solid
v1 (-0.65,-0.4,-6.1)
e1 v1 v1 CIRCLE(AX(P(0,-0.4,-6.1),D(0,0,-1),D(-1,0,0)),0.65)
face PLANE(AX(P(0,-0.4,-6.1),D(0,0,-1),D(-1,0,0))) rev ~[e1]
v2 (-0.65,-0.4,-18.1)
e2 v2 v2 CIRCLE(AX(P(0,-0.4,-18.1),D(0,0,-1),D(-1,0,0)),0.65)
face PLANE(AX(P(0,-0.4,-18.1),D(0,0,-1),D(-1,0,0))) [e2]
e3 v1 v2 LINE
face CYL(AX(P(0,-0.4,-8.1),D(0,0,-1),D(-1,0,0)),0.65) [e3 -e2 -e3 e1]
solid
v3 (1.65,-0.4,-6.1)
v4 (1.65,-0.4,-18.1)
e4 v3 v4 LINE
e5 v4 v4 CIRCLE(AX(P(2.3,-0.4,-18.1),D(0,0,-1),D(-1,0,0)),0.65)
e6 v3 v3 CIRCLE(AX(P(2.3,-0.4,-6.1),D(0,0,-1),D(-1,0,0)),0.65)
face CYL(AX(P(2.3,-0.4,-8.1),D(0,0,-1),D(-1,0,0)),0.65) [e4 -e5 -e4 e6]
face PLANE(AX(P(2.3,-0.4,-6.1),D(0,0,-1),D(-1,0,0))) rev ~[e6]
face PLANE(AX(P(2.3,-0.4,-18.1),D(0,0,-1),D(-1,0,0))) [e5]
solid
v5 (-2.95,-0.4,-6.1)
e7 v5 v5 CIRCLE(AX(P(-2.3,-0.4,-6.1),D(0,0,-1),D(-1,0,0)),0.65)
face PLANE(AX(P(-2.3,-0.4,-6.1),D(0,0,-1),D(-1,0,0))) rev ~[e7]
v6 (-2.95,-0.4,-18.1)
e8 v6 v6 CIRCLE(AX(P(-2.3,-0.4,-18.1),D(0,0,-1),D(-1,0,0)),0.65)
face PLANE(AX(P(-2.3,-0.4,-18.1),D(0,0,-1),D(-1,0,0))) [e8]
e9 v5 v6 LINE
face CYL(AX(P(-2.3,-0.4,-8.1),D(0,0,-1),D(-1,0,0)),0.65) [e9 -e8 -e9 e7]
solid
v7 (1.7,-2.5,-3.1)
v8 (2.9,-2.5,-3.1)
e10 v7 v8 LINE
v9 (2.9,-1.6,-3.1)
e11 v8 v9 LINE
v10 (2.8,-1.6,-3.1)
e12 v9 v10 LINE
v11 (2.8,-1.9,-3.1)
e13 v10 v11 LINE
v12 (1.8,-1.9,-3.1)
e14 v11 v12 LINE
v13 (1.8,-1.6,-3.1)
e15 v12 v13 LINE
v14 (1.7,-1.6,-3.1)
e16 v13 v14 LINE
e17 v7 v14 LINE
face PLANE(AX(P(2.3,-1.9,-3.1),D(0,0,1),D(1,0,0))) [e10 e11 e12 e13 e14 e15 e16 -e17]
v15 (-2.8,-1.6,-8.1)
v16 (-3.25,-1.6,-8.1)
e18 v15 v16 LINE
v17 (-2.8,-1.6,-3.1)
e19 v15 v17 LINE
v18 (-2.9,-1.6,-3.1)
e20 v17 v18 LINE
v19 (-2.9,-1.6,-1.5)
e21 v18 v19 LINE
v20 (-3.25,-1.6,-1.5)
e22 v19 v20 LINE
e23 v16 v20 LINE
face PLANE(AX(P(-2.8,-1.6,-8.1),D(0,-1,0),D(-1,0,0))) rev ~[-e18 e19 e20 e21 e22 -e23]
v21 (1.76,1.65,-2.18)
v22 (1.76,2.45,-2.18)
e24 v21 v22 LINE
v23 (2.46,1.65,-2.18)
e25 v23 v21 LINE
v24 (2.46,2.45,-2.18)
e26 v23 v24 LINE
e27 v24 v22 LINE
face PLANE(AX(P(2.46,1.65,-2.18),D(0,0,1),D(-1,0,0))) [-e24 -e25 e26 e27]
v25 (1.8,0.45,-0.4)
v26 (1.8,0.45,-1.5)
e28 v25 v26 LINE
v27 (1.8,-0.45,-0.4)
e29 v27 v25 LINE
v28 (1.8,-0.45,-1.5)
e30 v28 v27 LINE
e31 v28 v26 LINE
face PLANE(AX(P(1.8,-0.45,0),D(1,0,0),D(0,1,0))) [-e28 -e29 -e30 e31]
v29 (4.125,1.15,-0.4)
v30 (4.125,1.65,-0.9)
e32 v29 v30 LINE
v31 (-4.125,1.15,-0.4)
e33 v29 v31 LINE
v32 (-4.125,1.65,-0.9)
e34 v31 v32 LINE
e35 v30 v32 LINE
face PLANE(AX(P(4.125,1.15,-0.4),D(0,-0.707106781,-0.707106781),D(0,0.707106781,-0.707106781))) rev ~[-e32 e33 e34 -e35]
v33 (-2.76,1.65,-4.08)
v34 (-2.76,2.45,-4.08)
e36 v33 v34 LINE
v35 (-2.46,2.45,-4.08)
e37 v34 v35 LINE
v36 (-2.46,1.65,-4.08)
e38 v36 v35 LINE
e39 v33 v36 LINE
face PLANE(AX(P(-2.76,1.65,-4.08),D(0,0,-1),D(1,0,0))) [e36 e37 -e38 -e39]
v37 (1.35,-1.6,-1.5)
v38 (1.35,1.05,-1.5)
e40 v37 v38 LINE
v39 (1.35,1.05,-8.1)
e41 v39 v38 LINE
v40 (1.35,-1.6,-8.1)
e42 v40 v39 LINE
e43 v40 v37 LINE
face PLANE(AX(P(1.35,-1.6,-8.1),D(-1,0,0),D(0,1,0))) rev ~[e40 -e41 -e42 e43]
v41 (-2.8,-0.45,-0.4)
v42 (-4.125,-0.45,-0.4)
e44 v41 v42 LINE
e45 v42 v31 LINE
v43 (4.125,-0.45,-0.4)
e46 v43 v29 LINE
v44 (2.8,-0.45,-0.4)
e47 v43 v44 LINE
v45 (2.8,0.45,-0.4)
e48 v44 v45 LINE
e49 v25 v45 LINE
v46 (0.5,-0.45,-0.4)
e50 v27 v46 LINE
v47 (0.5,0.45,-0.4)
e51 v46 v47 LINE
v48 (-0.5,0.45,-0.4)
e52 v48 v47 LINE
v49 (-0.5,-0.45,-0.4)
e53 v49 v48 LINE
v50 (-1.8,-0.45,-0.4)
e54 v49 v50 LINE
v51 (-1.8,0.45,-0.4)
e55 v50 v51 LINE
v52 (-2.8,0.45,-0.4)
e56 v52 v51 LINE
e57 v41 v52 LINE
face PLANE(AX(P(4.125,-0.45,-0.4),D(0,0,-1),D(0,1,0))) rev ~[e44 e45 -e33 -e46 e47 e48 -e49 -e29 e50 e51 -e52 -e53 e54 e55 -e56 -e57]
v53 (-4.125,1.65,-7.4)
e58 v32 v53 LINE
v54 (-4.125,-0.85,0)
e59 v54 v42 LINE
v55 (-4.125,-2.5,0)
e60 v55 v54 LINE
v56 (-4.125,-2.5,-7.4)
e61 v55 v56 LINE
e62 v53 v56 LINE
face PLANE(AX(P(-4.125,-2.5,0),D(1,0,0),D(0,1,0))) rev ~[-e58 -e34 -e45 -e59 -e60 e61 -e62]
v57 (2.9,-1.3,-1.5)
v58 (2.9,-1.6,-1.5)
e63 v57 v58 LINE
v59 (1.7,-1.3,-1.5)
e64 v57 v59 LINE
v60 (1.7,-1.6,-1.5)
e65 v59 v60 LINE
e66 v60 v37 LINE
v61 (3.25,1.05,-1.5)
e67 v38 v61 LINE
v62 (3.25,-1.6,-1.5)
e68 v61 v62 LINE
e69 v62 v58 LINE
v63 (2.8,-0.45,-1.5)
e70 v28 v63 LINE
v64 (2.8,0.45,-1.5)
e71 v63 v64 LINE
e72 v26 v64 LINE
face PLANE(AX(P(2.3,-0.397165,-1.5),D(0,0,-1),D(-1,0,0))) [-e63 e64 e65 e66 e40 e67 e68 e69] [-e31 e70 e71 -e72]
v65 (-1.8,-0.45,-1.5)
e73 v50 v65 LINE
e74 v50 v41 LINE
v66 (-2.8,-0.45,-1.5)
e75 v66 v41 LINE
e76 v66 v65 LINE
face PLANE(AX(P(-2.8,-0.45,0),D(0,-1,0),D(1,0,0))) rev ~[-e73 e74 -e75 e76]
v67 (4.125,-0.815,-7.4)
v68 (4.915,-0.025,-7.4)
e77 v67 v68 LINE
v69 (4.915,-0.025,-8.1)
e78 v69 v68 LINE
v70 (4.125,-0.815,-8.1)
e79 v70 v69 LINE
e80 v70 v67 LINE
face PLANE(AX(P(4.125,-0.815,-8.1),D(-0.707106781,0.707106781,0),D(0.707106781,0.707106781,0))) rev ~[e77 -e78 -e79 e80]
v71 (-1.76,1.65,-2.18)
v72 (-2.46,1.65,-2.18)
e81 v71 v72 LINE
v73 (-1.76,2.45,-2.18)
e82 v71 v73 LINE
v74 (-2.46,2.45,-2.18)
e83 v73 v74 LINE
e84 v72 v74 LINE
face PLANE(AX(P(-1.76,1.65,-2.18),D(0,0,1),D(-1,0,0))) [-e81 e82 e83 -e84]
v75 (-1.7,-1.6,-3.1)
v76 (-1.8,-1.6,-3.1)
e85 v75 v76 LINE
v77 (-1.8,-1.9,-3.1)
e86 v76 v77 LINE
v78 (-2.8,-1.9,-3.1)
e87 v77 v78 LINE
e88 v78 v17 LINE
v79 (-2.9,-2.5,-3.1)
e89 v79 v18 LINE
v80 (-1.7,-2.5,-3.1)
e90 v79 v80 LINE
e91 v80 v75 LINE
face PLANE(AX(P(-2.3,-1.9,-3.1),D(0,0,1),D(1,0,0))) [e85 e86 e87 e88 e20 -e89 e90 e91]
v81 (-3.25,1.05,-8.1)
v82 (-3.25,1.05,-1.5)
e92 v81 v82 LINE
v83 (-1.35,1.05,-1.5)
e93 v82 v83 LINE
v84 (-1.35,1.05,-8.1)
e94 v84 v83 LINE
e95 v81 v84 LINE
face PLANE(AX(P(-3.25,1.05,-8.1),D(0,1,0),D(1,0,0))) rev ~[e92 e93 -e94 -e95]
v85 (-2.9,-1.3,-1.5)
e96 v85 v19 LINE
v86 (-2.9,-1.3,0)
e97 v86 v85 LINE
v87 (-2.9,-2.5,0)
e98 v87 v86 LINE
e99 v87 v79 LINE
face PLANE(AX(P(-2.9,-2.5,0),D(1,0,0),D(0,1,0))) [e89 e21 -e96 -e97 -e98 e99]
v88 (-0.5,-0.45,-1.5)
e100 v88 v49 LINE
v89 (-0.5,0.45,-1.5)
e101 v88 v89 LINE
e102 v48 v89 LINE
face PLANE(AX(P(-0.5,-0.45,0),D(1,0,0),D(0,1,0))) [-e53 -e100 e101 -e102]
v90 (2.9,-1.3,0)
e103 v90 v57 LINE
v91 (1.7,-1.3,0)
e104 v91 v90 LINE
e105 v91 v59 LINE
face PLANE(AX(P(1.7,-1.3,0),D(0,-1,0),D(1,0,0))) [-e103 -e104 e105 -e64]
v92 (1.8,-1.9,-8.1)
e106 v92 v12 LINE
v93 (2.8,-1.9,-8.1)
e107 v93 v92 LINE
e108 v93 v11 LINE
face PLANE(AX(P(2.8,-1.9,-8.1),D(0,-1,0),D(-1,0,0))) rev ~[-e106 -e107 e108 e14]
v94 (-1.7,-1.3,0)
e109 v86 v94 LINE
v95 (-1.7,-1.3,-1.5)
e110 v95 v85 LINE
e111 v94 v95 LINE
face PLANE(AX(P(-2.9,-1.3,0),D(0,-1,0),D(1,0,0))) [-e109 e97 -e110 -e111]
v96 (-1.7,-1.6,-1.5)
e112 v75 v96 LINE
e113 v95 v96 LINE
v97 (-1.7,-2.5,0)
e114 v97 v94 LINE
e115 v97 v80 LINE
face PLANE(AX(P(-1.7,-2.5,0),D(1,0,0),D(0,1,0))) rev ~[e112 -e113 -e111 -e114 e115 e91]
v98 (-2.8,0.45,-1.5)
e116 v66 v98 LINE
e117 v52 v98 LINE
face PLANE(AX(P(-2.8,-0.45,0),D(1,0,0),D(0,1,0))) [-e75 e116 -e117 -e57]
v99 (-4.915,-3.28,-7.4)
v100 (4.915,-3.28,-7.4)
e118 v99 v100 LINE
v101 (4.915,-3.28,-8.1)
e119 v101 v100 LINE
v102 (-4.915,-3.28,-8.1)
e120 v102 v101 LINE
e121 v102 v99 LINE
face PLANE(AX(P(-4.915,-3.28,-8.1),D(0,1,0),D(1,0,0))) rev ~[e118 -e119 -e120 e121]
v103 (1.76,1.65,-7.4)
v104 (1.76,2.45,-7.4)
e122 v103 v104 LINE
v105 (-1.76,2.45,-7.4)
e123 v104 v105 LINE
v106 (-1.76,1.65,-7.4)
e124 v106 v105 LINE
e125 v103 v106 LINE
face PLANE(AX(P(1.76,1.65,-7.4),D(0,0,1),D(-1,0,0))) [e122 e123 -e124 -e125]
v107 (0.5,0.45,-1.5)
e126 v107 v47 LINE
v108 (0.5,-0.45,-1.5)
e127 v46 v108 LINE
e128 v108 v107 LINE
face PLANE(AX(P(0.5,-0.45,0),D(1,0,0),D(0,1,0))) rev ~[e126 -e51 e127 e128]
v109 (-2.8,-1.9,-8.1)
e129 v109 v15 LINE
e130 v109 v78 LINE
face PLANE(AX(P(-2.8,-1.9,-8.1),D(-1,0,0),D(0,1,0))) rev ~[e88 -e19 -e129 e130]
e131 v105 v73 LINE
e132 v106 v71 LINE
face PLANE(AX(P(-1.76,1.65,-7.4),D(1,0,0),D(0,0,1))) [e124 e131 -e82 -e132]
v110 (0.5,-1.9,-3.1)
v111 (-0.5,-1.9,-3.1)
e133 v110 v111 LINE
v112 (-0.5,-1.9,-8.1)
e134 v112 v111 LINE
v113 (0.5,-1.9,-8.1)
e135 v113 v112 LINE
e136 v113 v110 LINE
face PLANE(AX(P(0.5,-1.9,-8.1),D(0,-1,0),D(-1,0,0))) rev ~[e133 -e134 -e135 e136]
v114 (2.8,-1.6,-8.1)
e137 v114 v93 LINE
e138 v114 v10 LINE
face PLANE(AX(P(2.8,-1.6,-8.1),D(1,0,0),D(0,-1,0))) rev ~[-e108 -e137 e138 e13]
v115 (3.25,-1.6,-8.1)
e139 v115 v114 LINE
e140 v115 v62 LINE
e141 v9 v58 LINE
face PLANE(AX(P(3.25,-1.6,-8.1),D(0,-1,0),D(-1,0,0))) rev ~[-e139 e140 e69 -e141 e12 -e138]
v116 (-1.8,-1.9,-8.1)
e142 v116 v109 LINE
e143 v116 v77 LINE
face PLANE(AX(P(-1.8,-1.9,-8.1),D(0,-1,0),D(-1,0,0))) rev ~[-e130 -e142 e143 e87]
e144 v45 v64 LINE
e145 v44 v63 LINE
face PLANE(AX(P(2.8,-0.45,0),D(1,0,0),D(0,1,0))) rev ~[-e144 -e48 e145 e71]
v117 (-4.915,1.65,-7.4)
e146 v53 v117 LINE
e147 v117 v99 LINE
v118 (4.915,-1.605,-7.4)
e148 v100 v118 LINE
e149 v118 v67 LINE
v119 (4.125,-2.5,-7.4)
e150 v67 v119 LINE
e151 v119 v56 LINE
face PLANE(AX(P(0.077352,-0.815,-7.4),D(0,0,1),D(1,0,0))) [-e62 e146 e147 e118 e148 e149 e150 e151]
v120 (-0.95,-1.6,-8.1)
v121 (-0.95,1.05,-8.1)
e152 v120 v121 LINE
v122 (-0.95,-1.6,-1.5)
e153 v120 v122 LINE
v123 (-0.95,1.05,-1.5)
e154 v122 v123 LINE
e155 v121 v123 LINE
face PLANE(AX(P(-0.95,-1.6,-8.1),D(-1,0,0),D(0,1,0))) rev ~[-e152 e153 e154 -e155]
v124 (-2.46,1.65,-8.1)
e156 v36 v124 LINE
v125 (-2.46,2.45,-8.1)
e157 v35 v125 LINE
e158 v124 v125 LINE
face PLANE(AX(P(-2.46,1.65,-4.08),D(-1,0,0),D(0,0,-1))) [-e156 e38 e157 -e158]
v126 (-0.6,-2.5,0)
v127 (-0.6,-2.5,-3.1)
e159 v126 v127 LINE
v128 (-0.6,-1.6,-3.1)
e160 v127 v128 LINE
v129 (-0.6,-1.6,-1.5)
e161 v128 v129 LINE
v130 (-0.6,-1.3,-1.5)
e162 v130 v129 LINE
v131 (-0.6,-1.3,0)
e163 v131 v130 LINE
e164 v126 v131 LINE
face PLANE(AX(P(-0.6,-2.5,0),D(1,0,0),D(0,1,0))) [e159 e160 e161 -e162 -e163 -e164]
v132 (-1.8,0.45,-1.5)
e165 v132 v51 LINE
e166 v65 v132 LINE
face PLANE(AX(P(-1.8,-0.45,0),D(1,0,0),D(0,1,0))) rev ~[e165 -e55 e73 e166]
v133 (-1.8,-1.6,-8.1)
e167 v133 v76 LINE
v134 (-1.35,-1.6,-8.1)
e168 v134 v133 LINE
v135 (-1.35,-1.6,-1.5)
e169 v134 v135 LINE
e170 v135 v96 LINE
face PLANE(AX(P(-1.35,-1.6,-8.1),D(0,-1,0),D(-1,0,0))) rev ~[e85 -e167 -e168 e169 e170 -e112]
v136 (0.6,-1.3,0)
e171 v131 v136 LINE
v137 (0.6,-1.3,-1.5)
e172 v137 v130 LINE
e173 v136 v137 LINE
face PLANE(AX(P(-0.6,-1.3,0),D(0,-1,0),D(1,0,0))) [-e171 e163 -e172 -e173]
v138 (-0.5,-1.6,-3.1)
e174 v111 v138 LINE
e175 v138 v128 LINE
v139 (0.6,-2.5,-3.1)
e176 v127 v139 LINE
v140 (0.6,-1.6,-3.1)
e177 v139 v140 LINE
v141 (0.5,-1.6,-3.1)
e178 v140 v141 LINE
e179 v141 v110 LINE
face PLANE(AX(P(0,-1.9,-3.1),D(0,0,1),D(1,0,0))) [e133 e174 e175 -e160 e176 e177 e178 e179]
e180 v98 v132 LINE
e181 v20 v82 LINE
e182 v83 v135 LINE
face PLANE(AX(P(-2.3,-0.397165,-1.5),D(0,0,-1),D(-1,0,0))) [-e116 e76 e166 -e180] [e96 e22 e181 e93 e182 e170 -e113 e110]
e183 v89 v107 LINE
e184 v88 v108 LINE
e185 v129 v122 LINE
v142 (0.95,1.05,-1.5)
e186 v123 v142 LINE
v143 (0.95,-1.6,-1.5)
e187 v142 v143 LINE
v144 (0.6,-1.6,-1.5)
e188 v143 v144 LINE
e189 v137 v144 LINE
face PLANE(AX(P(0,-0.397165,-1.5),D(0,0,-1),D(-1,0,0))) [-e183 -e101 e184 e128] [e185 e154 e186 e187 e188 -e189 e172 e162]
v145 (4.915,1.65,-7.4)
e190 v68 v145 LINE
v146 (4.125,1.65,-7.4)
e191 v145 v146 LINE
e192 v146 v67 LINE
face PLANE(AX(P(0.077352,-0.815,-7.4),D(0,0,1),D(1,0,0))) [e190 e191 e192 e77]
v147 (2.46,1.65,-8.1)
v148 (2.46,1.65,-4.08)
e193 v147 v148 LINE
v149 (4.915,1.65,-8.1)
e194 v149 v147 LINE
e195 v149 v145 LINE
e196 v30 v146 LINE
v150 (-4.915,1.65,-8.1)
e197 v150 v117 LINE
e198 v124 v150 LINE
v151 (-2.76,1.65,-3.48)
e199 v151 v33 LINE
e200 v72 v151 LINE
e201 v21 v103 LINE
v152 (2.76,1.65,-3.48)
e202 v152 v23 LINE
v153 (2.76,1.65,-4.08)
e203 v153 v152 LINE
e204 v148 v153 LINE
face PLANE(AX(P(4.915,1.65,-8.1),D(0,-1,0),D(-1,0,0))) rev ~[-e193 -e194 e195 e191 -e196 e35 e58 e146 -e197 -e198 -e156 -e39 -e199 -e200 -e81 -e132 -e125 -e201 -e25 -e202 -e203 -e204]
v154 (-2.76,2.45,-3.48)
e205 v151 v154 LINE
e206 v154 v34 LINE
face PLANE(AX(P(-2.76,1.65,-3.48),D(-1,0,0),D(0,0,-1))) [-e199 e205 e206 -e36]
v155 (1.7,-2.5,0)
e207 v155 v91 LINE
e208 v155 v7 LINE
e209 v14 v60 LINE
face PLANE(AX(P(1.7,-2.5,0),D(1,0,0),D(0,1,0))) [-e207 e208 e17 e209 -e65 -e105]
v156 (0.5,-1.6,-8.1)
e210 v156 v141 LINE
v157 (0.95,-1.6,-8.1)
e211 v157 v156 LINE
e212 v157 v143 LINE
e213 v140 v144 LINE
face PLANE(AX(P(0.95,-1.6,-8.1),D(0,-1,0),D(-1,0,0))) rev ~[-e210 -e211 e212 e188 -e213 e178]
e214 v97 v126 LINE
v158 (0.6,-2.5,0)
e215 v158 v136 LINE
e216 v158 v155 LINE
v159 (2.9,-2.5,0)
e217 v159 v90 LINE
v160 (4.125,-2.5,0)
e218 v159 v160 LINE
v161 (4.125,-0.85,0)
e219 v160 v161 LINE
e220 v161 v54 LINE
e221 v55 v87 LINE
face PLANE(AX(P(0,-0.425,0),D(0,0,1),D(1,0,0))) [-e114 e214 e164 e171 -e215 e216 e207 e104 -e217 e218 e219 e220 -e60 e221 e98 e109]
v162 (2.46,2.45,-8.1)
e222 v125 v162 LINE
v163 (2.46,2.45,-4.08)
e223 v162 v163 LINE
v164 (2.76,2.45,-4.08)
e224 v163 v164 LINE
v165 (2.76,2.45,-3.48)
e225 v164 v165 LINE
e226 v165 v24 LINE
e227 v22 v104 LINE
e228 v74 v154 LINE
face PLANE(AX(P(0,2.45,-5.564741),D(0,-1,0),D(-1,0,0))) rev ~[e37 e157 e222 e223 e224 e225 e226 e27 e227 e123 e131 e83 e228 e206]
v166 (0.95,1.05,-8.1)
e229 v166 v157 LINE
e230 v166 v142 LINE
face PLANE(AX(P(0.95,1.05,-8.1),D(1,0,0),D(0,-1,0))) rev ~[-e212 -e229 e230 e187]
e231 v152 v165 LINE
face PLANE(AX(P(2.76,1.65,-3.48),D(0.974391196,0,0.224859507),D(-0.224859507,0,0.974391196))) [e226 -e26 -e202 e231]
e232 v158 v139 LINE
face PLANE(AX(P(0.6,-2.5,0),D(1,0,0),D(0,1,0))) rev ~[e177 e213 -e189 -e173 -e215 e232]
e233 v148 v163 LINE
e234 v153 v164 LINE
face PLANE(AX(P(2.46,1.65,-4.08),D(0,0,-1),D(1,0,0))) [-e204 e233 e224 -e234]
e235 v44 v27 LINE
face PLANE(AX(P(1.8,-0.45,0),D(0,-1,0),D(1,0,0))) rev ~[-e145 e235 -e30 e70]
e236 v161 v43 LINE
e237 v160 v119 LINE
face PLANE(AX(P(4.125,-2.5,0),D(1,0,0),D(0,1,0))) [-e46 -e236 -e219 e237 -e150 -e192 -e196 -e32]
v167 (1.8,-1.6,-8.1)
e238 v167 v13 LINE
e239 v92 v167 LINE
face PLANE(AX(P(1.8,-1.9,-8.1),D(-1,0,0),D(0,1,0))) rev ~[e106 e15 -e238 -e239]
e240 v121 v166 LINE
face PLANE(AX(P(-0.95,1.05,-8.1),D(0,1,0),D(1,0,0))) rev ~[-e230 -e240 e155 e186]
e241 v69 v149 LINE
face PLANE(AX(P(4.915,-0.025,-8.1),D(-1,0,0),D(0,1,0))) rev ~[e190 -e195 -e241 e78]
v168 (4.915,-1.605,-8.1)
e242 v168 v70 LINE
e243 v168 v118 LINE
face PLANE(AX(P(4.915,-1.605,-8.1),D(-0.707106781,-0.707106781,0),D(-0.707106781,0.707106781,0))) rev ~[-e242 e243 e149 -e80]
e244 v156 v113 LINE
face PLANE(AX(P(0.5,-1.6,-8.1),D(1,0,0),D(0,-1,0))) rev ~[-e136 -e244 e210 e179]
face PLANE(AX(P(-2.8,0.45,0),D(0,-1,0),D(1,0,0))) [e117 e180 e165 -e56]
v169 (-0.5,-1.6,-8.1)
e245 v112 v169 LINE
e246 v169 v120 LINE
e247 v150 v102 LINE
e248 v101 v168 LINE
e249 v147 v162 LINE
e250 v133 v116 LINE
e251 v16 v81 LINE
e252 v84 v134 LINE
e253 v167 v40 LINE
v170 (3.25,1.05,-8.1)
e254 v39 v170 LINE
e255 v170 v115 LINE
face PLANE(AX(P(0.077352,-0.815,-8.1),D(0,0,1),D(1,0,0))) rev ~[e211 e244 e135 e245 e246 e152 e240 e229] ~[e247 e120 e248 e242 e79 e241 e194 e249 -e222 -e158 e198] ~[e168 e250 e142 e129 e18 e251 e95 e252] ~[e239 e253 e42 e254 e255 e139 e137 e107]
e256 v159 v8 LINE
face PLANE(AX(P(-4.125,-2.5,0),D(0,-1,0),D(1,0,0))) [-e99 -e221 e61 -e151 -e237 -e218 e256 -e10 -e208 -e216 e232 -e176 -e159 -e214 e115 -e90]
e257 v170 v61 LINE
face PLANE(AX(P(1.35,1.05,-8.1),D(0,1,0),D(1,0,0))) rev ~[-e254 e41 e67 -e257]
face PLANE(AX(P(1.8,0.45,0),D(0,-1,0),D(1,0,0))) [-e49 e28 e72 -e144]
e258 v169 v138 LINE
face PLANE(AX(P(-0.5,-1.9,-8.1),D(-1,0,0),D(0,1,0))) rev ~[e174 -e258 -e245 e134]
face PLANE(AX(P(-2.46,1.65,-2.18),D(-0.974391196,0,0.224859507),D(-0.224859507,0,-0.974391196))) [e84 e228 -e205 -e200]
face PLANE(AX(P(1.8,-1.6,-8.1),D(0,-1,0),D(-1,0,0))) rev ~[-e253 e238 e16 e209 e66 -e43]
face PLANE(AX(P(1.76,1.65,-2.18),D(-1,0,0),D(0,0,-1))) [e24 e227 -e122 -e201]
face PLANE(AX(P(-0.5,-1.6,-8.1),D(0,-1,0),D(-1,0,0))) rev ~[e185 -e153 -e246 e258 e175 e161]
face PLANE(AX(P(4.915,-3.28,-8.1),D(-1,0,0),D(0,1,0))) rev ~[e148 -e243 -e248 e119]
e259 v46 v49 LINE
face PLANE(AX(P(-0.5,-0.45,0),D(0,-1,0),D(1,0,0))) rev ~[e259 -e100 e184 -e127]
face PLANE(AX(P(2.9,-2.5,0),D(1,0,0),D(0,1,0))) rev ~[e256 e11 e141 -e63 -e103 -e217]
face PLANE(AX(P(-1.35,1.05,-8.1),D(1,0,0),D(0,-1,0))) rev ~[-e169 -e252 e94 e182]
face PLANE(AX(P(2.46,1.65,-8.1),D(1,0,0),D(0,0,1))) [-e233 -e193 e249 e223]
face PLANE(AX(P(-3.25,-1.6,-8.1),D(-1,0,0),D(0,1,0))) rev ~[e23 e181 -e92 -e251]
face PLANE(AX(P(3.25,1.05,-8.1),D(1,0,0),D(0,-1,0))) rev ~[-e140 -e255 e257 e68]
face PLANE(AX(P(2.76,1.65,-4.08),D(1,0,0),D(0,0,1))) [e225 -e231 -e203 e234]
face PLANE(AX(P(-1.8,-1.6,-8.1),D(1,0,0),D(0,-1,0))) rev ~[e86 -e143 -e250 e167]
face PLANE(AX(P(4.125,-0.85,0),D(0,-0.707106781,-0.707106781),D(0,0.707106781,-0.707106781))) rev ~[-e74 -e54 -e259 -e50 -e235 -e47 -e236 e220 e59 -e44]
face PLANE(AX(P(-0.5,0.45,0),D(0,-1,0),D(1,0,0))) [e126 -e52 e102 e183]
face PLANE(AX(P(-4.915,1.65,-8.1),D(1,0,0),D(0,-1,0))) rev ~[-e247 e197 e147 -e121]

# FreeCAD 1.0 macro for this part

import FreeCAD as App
import Part
import Sketcher
from FreeCAD import Vector
Q = App.Units.Quantity

doc = App.newDocument("Part")
params = doc.addObject("Spreadsheet::Sheet", "Params")
for row, (alias, value) in enumerate([
    ("sketch1_width", "1 mm"),
    ("sketch1_height", "0.9 mm"),
    ("sketch1_width2", "8.25 mm"),
    ("sketch1_height2", "4.15 mm"),
    ("pad1_length", "8.1 mm"),
    ("sketch2_width", "5.6 mm"),
    ("sketch2_height", "0.9 mm"),
    ("sketch2_width2", "9.83 mm"),
    ("sketch2_height2", "4.93 mm"),
    ("pad2_length", "0.7 mm"),
    ("sketch3_width", "1 mm"),
    ("sketch3_width2", "1.9 mm"),
    ("sketch3_height", "0.3 mm"),
    ("sketch3_height2", "2.65 mm"),
    ("pocket1_length", "6.6 mm"),
    ("sketch4_width", "1.6 mm"),
    ("sketch4_width2", "2.5 mm"),
    ("sketch5_width", "1.2 mm"),
    ("pocket3_length", "3.1 mm"),
    ("sketch6_width", "0.3 mm"),
    ("sketch6_width2", "0.7 mm"),
    ("sketch6_height", "0.6 mm"),
    ("sketch6_width3", "4.92 mm"),
    ("sketch6_height2", "4.02 mm"),
    ("pad3_length", "0.8 mm"),
    ("sketch7_diameter", "1.3 mm"),
    ("pad4_length", "10 mm"),
    ("pad4_length2", "2 mm"),
    ("sketch8_diameter", "1.3 mm"),
    ("pad5_length", "10 mm"),
    ("pad5_length2", "2 mm"),
    ("sketch9_diameter", "1.3 mm"),
    ("pad6_length", "10 mm"),
    ("pad6_length2", "2 mm"),
], start=1):
    params.set(f"A{row}", alias)
    params.set(f"B{row}", "=" + value)
    params.setAlias(f"B{row}", alias)

body = doc.addObject("PartDesign::Body", "Body")

# Sketch on XY plane
sketch1 = body.newObject("Sketcher::SketchObject", "Sketch")
sketch1.AttachmentSupport = (doc.getObject("XY_Plane"), [""])
sketch1.MapMode = "FlatFace"
sketch1.addGeometry([
    Part.LineSegment(Vector(-4.125, 1.65, 0), Vector(-4.125, -2.5, 0)),  # 0
    Part.LineSegment(Vector(-4.125, -2.5, 0), Vector(4.125, -2.5, 0)),  # 1
    Part.LineSegment(Vector(4.125, -2.5, 0), Vector(4.125, 1.65, 0)),  # 2
    Part.LineSegment(Vector(4.125, 1.65, 0), Vector(-4.125, 1.65, 0)),  # 3
    Part.LineSegment(Vector(-1.8, -0.45, 0), Vector(-2.8, -0.45, 0)),  # 4
    Part.LineSegment(Vector(-2.8, -0.45, 0), Vector(-2.8, 0.45, 0)),  # 5
    Part.LineSegment(Vector(-2.8, 0.45, 0), Vector(-1.8, 0.45, 0)),  # 6
    Part.LineSegment(Vector(-1.8, 0.45, 0), Vector(-1.8, -0.45, 0)),  # 7
    Part.LineSegment(Vector(0.5, -0.45, 0), Vector(-0.5, -0.45, 0)),  # 8
    Part.LineSegment(Vector(-0.5, -0.45, 0), Vector(-0.5, 0.45, 0)),  # 9
    Part.LineSegment(Vector(-0.5, 0.45, 0), Vector(0.5, 0.45, 0)),  # 10
    Part.LineSegment(Vector(0.5, 0.45, 0), Vector(0.5, -0.45, 0)),  # 11
    Part.LineSegment(Vector(2.8, -0.45, 0), Vector(1.8, -0.45, 0)),  # 12
    Part.LineSegment(Vector(1.8, -0.45, 0), Vector(1.8, 0.45, 0)),  # 13
    Part.LineSegment(Vector(1.8, 0.45, 0), Vector(2.8, 0.45, 0)),  # 14
    Part.LineSegment(Vector(2.8, 0.45, 0), Vector(2.8, -0.45, 0)),  # 15
], False)
sketch1.addConstraint([
    Sketcher.Constraint("Coincident", 0, 2, 1, 1),
    Sketcher.Constraint("Coincident", 1, 2, 2, 1),
    Sketcher.Constraint("Coincident", 2, 2, 3, 1),
    Sketcher.Constraint("Coincident", 3, 2, 0, 1),
    Sketcher.Constraint("Coincident", 4, 2, 5, 1),
    Sketcher.Constraint("Coincident", 5, 2, 6, 1),
    Sketcher.Constraint("Coincident", 6, 2, 7, 1),
    Sketcher.Constraint("Coincident", 7, 2, 4, 1),
    Sketcher.Constraint("Coincident", 8, 2, 9, 1),
    Sketcher.Constraint("Coincident", 9, 2, 10, 1),
    Sketcher.Constraint("Coincident", 10, 2, 11, 1),
    Sketcher.Constraint("Coincident", 11, 2, 8, 1),
    Sketcher.Constraint("Coincident", 12, 2, 13, 1),
    Sketcher.Constraint("Coincident", 13, 2, 14, 1),
    Sketcher.Constraint("Coincident", 14, 2, 15, 1),
    Sketcher.Constraint("Coincident", 15, 2, 12, 1),
    Sketcher.Constraint("Vertical", 0),
    Sketcher.Constraint("Horizontal", 1),
    Sketcher.Constraint("Vertical", 2),
    Sketcher.Constraint("Horizontal", 3),
    Sketcher.Constraint("Horizontal", 4),
    Sketcher.Constraint("Vertical", 5),
    Sketcher.Constraint("Horizontal", 6),
    Sketcher.Constraint("Vertical", 7),
    Sketcher.Constraint("Horizontal", 8),
    Sketcher.Constraint("Vertical", 9),
    Sketcher.Constraint("Horizontal", 10),
    Sketcher.Constraint("Vertical", 11),
    Sketcher.Constraint("Horizontal", 12),
    Sketcher.Constraint("Vertical", 13),
    Sketcher.Constraint("Horizontal", 14),
    Sketcher.Constraint("Vertical", 15),
    Sketcher.Constraint("Symmetric", 8, 2, 10, 2, -1, 1),
    Sketcher.Constraint("Symmetric", 6, 2, 12, 2, -1, 1),
    Sketcher.Constraint("Symmetric", 4, 2, 14, 2, -1, 1),
    Sketcher.Constraint("Horizontal", 7, 2, 8, 2),
    Sketcher.Constraint("Horizontal", 6, 2, 9, 2),
    Sketcher.Constraint("Equal", 6, 8),
    Sketcher.Constraint("DistanceX", 4, 2, 4, 1, Q("1 mm")),
    Sketcher.Constraint("DistanceY", 5, 1, 5, 2, Q("0.9 mm")),
    Sketcher.Constraint("DistanceX", 1, 1, 1, 2, Q("8.25 mm")),
    Sketcher.Constraint("DistanceY", 0, 2, 0, 1, Q("4.15 mm")),
    Sketcher.Constraint("DistanceY", 0, 2, -1, 1, Q("2.5 mm")),
    Sketcher.Constraint("DistanceX", 4, 2, -1, 1, Q("2.8 mm")),
    Sketcher.Constraint("DistanceX", 0, 2, -1, 1, Q("4.125 mm")),
])
sketch1.setExpression("Constraints[38]", "Params.sketch1_width")
sketch1.setExpression("Constraints[39]", "Params.sketch1_height")
sketch1.setExpression("Constraints[40]", "Params.sketch1_width2")
sketch1.setExpression("Constraints[41]", "Params.sketch1_height2")
pad1 = body.newObject("PartDesign::Pad", "Pad")
pad1.Profile = sketch1
pad1.setExpression("Length", "Params.pad1_length")
pad1.Reversed = True

# Sketch on XY plane
sketch2 = body.newObject("Sketcher::SketchObject", "Sketch001")
sketch2.AttachmentSupport = (doc.getObject("XY_Plane"), [""])
sketch2.MapMode = "FlatFace"
sketch2.AttachmentOffset = App.Placement(Vector(0, 0, -8.1), App.Rotation())
sketch2.addGeometry([
    Part.LineSegment(Vector(-4.915, 1.65, 0), Vector(4.915, 1.65, 0)),  # 0
    Part.LineSegment(Vector(4.915, 1.65, 0), Vector(4.915, -0.025, 0)),  # 1
    Part.LineSegment(Vector(4.915, -0.025, 0), Vector(4.125, -0.815, 0)),  # 2
    Part.LineSegment(Vector(4.125, -0.815, 0), Vector(4.915, -1.605, 0)),  # 3
    Part.LineSegment(Vector(4.915, -1.605, 0), Vector(4.915, -3.28, 0)),  # 4
    Part.LineSegment(Vector(4.915, -3.28, 0), Vector(-4.915, -3.28, 0)),  # 5
    Part.LineSegment(Vector(-4.915, -3.28, 0), Vector(-4.915, 1.65, 0)),  # 6
    Part.LineSegment(Vector(2.8, -0.45, 0), Vector(2.8, 0.45, 0)),  # 7
    Part.LineSegment(Vector(2.8, 0.45, 0), Vector(-2.8, 0.45, 0)),  # 8
    Part.LineSegment(Vector(-2.8, 0.45, 0), Vector(-2.8, -0.45, 0)),  # 9
    Part.LineSegment(Vector(-2.8, -0.45, 0), Vector(2.8, -0.45, 0)),  # 10
], False)
sketch2.addConstraint([
    Sketcher.Constraint("Coincident", 0, 2, 1, 1),
    Sketcher.Constraint("Coincident", 1, 2, 2, 1),
    Sketcher.Constraint("Coincident", 2, 2, 3, 1),
    Sketcher.Constraint("Coincident", 3, 2, 4, 1),
    Sketcher.Constraint("Coincident", 4, 2, 5, 1),
    Sketcher.Constraint("Coincident", 5, 2, 6, 1),
    Sketcher.Constraint("Coincident", 6, 2, 0, 1),
    Sketcher.Constraint("Coincident", 7, 2, 8, 1),
    Sketcher.Constraint("Coincident", 8, 2, 9, 1),
    Sketcher.Constraint("Coincident", 9, 2, 10, 1),
    Sketcher.Constraint("Coincident", 10, 2, 7, 1),
    Sketcher.Constraint("Horizontal", 0),
    Sketcher.Constraint("Vertical", 1),
    Sketcher.Constraint("Vertical", 4),
    Sketcher.Constraint("Horizontal", 5),
    Sketcher.Constraint("Vertical", 6),
    Sketcher.Constraint("Vertical", 7),
    Sketcher.Constraint("Horizontal", 8),
    Sketcher.Constraint("Vertical", 9),
    Sketcher.Constraint("Horizontal", 10),
    Sketcher.Constraint("Symmetric", 7, 2, 9, 2, -1, 1),
    Sketcher.Constraint("Perpendicular", 2, 3),
    Sketcher.Constraint("Vertical", 1, 2, 3, 2),
    Sketcher.Constraint("Equal", 1, 4),
    Sketcher.Constraint("Equal", 2, 3),
    Sketcher.Constraint("DistanceX", 8, 2, 8, 1, Q("5.6 mm")),
    Sketcher.Constraint("DistanceY", 7, 1, 7, 2, Q("0.9 mm")),
    Sketcher.Constraint("DistanceX", 0, 1, 0, 2, Q("9.83 mm")),
    Sketcher.Constraint("DistanceY", 6, 1, 6, 2, Q("4.93 mm")),
    Sketcher.Constraint("DistanceY", 7, 2, 0, 2, Q("1.2 mm")),
    Sketcher.Constraint("DistanceY", 1, 2, 1, 1, Q("1.675 mm")),
    Sketcher.Constraint("DistanceX", -1, 1, 0, 2, Q("4.915 mm")),
])
sketch2.setExpression("Constraints[25]", "Params.sketch2_width")
sketch2.setExpression("Constraints[26]", "Params.sketch2_height")
sketch2.setExpression("Constraints[27]", "Params.sketch2_width2")
sketch2.setExpression("Constraints[28]", "Params.sketch2_height2")
pad2 = body.newObject("PartDesign::Pad", "Pad001")
pad2.Profile = sketch2
pad2.setExpression("Length", "Params.pad2_length")

# Sketch on XY plane
sketch3 = body.newObject("Sketcher::SketchObject", "Sketch002")
sketch3.AttachmentSupport = (doc.getObject("XY_Plane"), [""])
sketch3.MapMode = "FlatFace"
sketch3.AttachmentOffset = App.Placement(Vector(0, 0, -8.1), App.Rotation())
sketch3.addGeometry([
    Part.LineSegment(Vector(-0.5, -1.6, 0), Vector(-0.95, -1.6, 0)),  # 0
    Part.LineSegment(Vector(-0.95, -1.6, 0), Vector(-0.95, 1.05, 0)),  # 1
    Part.LineSegment(Vector(-0.95, 1.05, 0), Vector(0.95, 1.05, 0)),  # 2
    Part.LineSegment(Vector(0.95, 1.05, 0), Vector(0.95, -1.6, 0)),  # 3
    Part.LineSegment(Vector(0.95, -1.6, 0), Vector(0.5, -1.6, 0)),  # 4
    Part.LineSegment(Vector(0.5, -1.6, 0), Vector(0.5, -1.9, 0)),  # 5
    Part.LineSegment(Vector(0.5, -1.9, 0), Vector(-0.5, -1.9, 0)),  # 6
    Part.LineSegment(Vector(-0.5, -1.9, 0), Vector(-0.5, -1.6, 0)),  # 7
    Part.LineSegment(Vector(1.8, -1.6, 0), Vector(1.35, -1.6, 0)),  # 8
    Part.LineSegment(Vector(1.35, -1.6, 0), Vector(1.35, 1.05, 0)),  # 9
    Part.LineSegment(Vector(1.35, 1.05, 0), Vector(3.25, 1.05, 0)),  # 10
    Part.LineSegment(Vector(3.25, 1.05, 0), Vector(3.25, -1.6, 0)),  # 11
    Part.LineSegment(Vector(3.25, -1.6, 0), Vector(2.8, -1.6, 0)),  # 12
    Part.LineSegment(Vector(2.8, -1.6, 0), Vector(2.8, -1.9, 0)),  # 13
    Part.LineSegment(Vector(2.8, -1.9, 0), Vector(1.8, -1.9, 0)),  # 14
    Part.LineSegment(Vector(1.8, -1.9, 0), Vector(1.8, -1.6, 0)),  # 15
    Part.LineSegment(Vector(-2.8, -1.6, 0), Vector(-3.25, -1.6, 0)),  # 16
    Part.LineSegment(Vector(-3.25, -1.6, 0), Vector(-3.25, 1.05, 0)),  # 17
    Part.LineSegment(Vector(-3.25, 1.05, 0), Vector(-1.35, 1.05, 0)),  # 18
    Part.LineSegment(Vector(-1.35, 1.05, 0), Vector(-1.35, -1.6, 0)),  # 19
    Part.LineSegment(Vector(-1.35, -1.6, 0), Vector(-1.8, -1.6, 0)),  # 20
    Part.LineSegment(Vector(-1.8, -1.6, 0), Vector(-1.8, -1.9, 0)),  # 21
    Part.LineSegment(Vector(-1.8, -1.9, 0), Vector(-2.8, -1.9, 0)),  # 22
    Part.LineSegment(Vector(-2.8, -1.9, 0), Vector(-2.8, -1.6, 0)),  # 23
], False)
sketch3.addConstraint([
    Sketcher.Constraint("Coincident", 0, 2, 1, 1),
    Sketcher.Constraint("Coincident", 1, 2, 2, 1),
    Sketcher.Constraint("Coincident", 2, 2, 3, 1),
    Sketcher.Constraint("Coincident", 3, 2, 4, 1),
    Sketcher.Constraint("Coincident", 4, 2, 5, 1),
    Sketcher.Constraint("Coincident", 5, 2, 6, 1),
    Sketcher.Constraint("Coincident", 6, 2, 7, 1),
    Sketcher.Constraint("Coincident", 7, 2, 0, 1),
    Sketcher.Constraint("Coincident", 8, 2, 9, 1),
    Sketcher.Constraint("Coincident", 9, 2, 10, 1),
    Sketcher.Constraint("Coincident", 10, 2, 11, 1),
    Sketcher.Constraint("Coincident", 11, 2, 12, 1),
    Sketcher.Constraint("Coincident", 12, 2, 13, 1),
    Sketcher.Constraint("Coincident", 13, 2, 14, 1),
    Sketcher.Constraint("Coincident", 14, 2, 15, 1),
    Sketcher.Constraint("Coincident", 15, 2, 8, 1),
    Sketcher.Constraint("Coincident", 16, 2, 17, 1),
    Sketcher.Constraint("Coincident", 17, 2, 18, 1),
    Sketcher.Constraint("Coincident", 18, 2, 19, 1),
    Sketcher.Constraint("Coincident", 19, 2, 20, 1),
    Sketcher.Constraint("Coincident", 20, 2, 21, 1),
    Sketcher.Constraint("Coincident", 21, 2, 22, 1),
    Sketcher.Constraint("Coincident", 22, 2, 23, 1),
    Sketcher.Constraint("Coincident", 23, 2, 16, 1),
    Sketcher.Constraint("Horizontal", 0),
    Sketcher.Constraint("Vertical", 1),
    Sketcher.Constraint("Horizontal", 2),
    Sketcher.Constraint("Vertical", 3),
    Sketcher.Constraint("Horizontal", 4),
    Sketcher.Constraint("Vertical", 5),
    Sketcher.Constraint("Horizontal", 6),
    Sketcher.Constraint("Vertical", 7),
    Sketcher.Constraint("Horizontal", 8),
    Sketcher.Constraint("Vertical", 9),
    Sketcher.Constraint("Horizontal", 10),
    Sketcher.Constraint("Vertical", 11),
    Sketcher.Constraint("Horizontal", 12),
    Sketcher.Constraint("Vertical", 13),
    Sketcher.Constraint("Horizontal", 14),
    Sketcher.Constraint("Vertical", 15),
    Sketcher.Constraint("Horizontal", 16),
    Sketcher.Constraint("Vertical", 17),
    Sketcher.Constraint("Horizontal", 18),
    Sketcher.Constraint("Vertical", 19),
    Sketcher.Constraint("Horizontal", 20),
    Sketcher.Constraint("Vertical", 21),
    Sketcher.Constraint("Horizontal", 22),
    Sketcher.Constraint("Vertical", 23),
    Sketcher.Constraint("Symmetric", 0, 2, 3, 2, -2),
    Sketcher.Constraint("Symmetric", 11, 2, 16, 2, -2),
    Sketcher.Constraint("Symmetric", 9, 2, 18, 2, -2),
    Sketcher.Constraint("Symmetric", 15, 2, 20, 2, -2),
    Sketcher.Constraint("Symmetric", 13, 2, 22, 2, -2),
    Sketcher.Constraint("Horizontal", 7, 2, 8, 2),
    Sketcher.Constraint("Horizontal", 2, 2, 9, 2),
    Sketcher.Constraint("Horizontal", 8, 2, 11, 2),
    Sketcher.Constraint("Horizontal", 6, 2, 13, 2),
    Sketcher.Constraint("Equal", 0, 4),
    Sketcher.Constraint("Equal", 4, 8),
    Sketcher.Constraint("Equal", 2, 10),
    Sketcher.Constraint("Equal", 8, 12),
    Sketcher.Constraint("DistanceX", 6, 2, 6, 1, Q("1 mm")),
    Sketcher.Constraint("DistanceX", 2, 1, 2, 2, Q("1.9 mm")),
    Sketcher.Constraint("DistanceY", 5, 2, 5, 1, Q("0.3 mm")),
    Sketcher.Constraint("DistanceY", 1, 1, 1, 2, Q("2.65 mm")),
    Sketcher.Constraint("DistanceY", 0, 2, -1, 1, Q("1.6 mm")),
    Sketcher.Constraint("DistanceX", -1, 1, 12, 2, Q("2.8 mm")),
])
sketch3.setExpression("Constraints[61]", "Params.sketch3_width")
sketch3.setExpression("Constraints[62]", "Params.sketch3_width2")
sketch3.setExpression("Constraints[63]", "Params.sketch3_height")
sketch3.setExpression("Constraints[64]", "Params.sketch3_height2")
pocket1 = body.newObject("PartDesign::Pocket", "Pocket")
pocket1.Profile = sketch3
pocket1.setExpression("Length", "Params.pocket1_length")
pocket1.Reversed = True

# Sketch on YZ plane
sketch4 = body.newObject("Sketcher::SketchObject", "Sketch003")
sketch4.AttachmentSupport = (doc.getObject("YZ_Plane"), [""])
sketch4.MapMode = "FlatFace"
sketch4.AttachmentOffset = App.Placement(Vector(0, 0, 4.125), App.Rotation())
sketch4.addGeometry([
    Part.LineSegment(Vector(-0.85, 0, 0), Vector(-0.45, -0.4, 0)),  # 0
    Part.LineSegment(Vector(-0.45, -0.4, 0), Vector(1.15, -0.4, 0)),  # 1
    Part.LineSegment(Vector(1.15, -0.4, 0), Vector(1.65, -0.9, 0)),  # 2
    Part.LineSegment(Vector(1.65, -0.9, 0), Vector(1.65, 0, 0)),  # 3
    Part.LineSegment(Vector(1.65, 0, 0), Vector(-0.85, 0, 0)),  # 4
], False)
sketch4.addConstraint([
    Sketcher.Constraint("Coincident", 0, 2, 1, 1),
    Sketcher.Constraint("Coincident", 1, 2, 2, 1),
    Sketcher.Constraint("Coincident", 2, 2, 3, 1),
    Sketcher.Constraint("Coincident", 3, 2, 4, 1),
    Sketcher.Constraint("Coincident", 4, 2, 0, 1),
    Sketcher.Constraint("Horizontal", 1),
    Sketcher.Constraint("Vertical", 3),
    Sketcher.Constraint("Horizontal", 4),
    Sketcher.Constraint("PointOnObject", 3, 2, -1),
    Sketcher.Constraint("Parallel", 0, 2),
    Sketcher.Constraint("Angle", 0, Q("-45 deg")),
    Sketcher.Constraint("DistanceX", 1, 1, 1, 2, Q("1.6 mm")),
    Sketcher.Constraint("DistanceX", 4, 2, 4, 1, Q("2.5 mm")),
    Sketcher.Constraint("DistanceX", 4, 2, 1, 2, Q("2 mm")),
    Sketcher.Constraint("DistanceX", 0, 2, -1, 1, Q("0.45 mm")),
])
sketch4.setExpression("Constraints[11]", "Params.sketch4_width")
sketch4.setExpression("Constraints[12]", "Params.sketch4_width2")
pocket2 = body.newObject("PartDesign::Pocket", "Pocket001")
pocket2.Profile = sketch4
pocket2.Type = "ThroughAll"

# Sketch on XY plane
sketch5 = body.newObject("Sketcher::SketchObject", "Sketch004")
sketch5.AttachmentSupport = (doc.getObject("XY_Plane"), [""])
sketch5.MapMode = "FlatFace"
sketch5.addGeometry([
    Part.LineSegment(Vector(-2.9, -1.3, 0), Vector(-2.9, -2.5, 0)),  # 0
    Part.LineSegment(Vector(-2.9, -2.5, 0), Vector(-1.7, -2.5, 0)),  # 1
    Part.LineSegment(Vector(-1.7, -2.5, 0), Vector(-1.7, -1.3, 0)),  # 2
    Part.LineSegment(Vector(-1.7, -1.3, 0), Vector(-2.9, -1.3, 0)),  # 3
    Part.LineSegment(Vector(-0.6, -1.3, 0), Vector(-0.6, -2.5, 0)),  # 4
    Part.LineSegment(Vector(-0.6, -2.5, 0), Vector(0.6, -2.5, 0)),  # 5
    Part.LineSegment(Vector(0.6, -2.5, 0), Vector(0.6, -1.3, 0)),  # 6
    Part.LineSegment(Vector(0.6, -1.3, 0), Vector(-0.6, -1.3, 0)),  # 7
    Part.LineSegment(Vector(1.7, -1.3, 0), Vector(1.7, -2.5, 0)),  # 8
    Part.LineSegment(Vector(1.7, -2.5, 0), Vector(2.9, -2.5, 0)),  # 9
    Part.LineSegment(Vector(2.9, -2.5, 0), Vector(2.9, -1.3, 0)),  # 10
    Part.LineSegment(Vector(2.9, -1.3, 0), Vector(1.7, -1.3, 0)),  # 11
], False)
sketch5.addConstraint([
    Sketcher.Constraint("Coincident", 0, 2, 1, 1),
    Sketcher.Constraint("Coincident", 1, 2, 2, 1),
    Sketcher.Constraint("Coincident", 2, 2, 3, 1),
    Sketcher.Constraint("Coincident", 3, 2, 0, 1),
    Sketcher.Constraint("Coincident", 4, 2, 5, 1),
    Sketcher.Constraint("Coincident", 5, 2, 6, 1),
    Sketcher.Constraint("Coincident", 6, 2, 7, 1),
    Sketcher.Constraint("Coincident", 7, 2, 4, 1),
    Sketcher.Constraint("Coincident", 8, 2, 9, 1),
    Sketcher.Constraint("Coincident", 9, 2, 10, 1),
    Sketcher.Constraint("Coincident", 10, 2, 11, 1),
    Sketcher.Constraint("Coincident", 11, 2, 8, 1),
    Sketcher.Constraint("Vertical", 0),
    Sketcher.Constraint("Horizontal", 1),
    Sketcher.Constraint("Vertical", 2),
    Sketcher.Constraint("Horizontal", 3),
    Sketcher.Constraint("Vertical", 4),
    Sketcher.Constraint("Horizontal", 5),
    Sketcher.Constraint("Vertical", 6),
    Sketcher.Constraint("Horizontal", 7),
    Sketcher.Constraint("Vertical", 8),
    Sketcher.Constraint("Horizontal", 9),
    Sketcher.Constraint("Vertical", 10),
    Sketcher.Constraint("Horizontal", 11),
    Sketcher.Constraint("Symmetric", 1, 2, 8, 2, -2),
    Sketcher.Constraint("Symmetric", 3, 2, 10, 2, -2),
    Sketcher.Constraint("Horizontal", 1, 2, 4, 2),
    Sketcher.Constraint("Horizontal", 3, 2, 6, 2),
    Sketcher.Constraint("Equal", 3, 5),
    Sketcher.Constraint("Equal", 11, 0),
    Sketcher.Constraint("DistanceX", 1, 1, 1, 2, Q("1.2 mm")),
    Sketcher.Constraint("DistanceX", 0, 2, -1, 1, Q("2.9 mm")),
    Sketcher.Constraint("DistanceY", 0, 2, -1, 1, Q("2.5 mm")),
    Sketcher.Constraint("DistanceX", 4, 2, -1, 1, Q("0.6 mm")),
])
sketch5.setExpression("Constraints[30]", "Params.sketch5_width")
pocket3 = body.newObject("PartDesign::Pocket", "Pocket002")
pocket3.Profile = sketch5
pocket3.setExpression("Length", "Params.pocket3_length")

# Sketch on XZ plane
sketch6 = body.newObject("Sketcher::SketchObject", "Sketch005")
sketch6.AttachmentSupport = (doc.getObject("XZ_Plane"), [""])
sketch6.MapMode = "FlatFace"
sketch6.AttachmentOffset = App.Placement(Vector(0, 0, -1.65), App.Rotation())
sketch6.addGeometry([
    Part.LineSegment(Vector(2.46, -8.1, 0), Vector(-2.46, -8.1, 0)),  # 0
    Part.LineSegment(Vector(-2.46, -8.1, 0), Vector(-2.46, -4.08, 0)),  # 1
    Part.LineSegment(Vector(-2.46, -4.08, 0), Vector(-2.76, -4.08, 0)),  # 2
    Part.LineSegment(Vector(-2.76, -4.08, 0), Vector(-2.76, -3.48, 0)),  # 3
    Part.LineSegment(Vector(-2.76, -3.48, 0), Vector(-2.46, -2.18, 0)),  # 4
    Part.LineSegment(Vector(-2.46, -2.18, 0), Vector(-1.76, -2.18, 0)),  # 5
    Part.LineSegment(Vector(-1.76, -2.18, 0), Vector(-1.76, -7.4, 0)),  # 6
    Part.LineSegment(Vector(-1.76, -7.4, 0), Vector(1.76, -7.4, 0)),  # 7
    Part.LineSegment(Vector(1.76, -7.4, 0), Vector(1.76, -2.18, 0)),  # 8
    Part.LineSegment(Vector(1.76, -2.18, 0), Vector(2.46, -2.18, 0)),  # 9
    Part.LineSegment(Vector(2.46, -2.18, 0), Vector(2.76, -3.48, 0)),  # 10
    Part.LineSegment(Vector(2.76, -3.48, 0), Vector(2.76, -4.08, 0)),  # 11
    Part.LineSegment(Vector(2.76, -4.08, 0), Vector(2.46, -4.08, 0)),  # 12
    Part.LineSegment(Vector(2.46, -4.08, 0), Vector(2.46, -8.1, 0)),  # 13
], False)
sketch6.addConstraint([
    Sketcher.Constraint("Coincident", 0, 2, 1, 1),
    Sketcher.Constraint("Coincident", 1, 2, 2, 1),
    Sketcher.Constraint("Coincident", 2, 2, 3, 1),
    Sketcher.Constraint("Coincident", 3, 2, 4, 1),
    Sketcher.Constraint("Coincident", 4, 2, 5, 1),
    Sketcher.Constraint("Coincident", 5, 2, 6, 1),
    Sketcher.Constraint("Coincident", 6, 2, 7, 1),
    Sketcher.Constraint("Coincident", 7, 2, 8, 1),
    Sketcher.Constraint("Coincident", 8, 2, 9, 1),
    Sketcher.Constraint("Coincident", 9, 2, 10, 1),
    Sketcher.Constraint("Coincident", 10, 2, 11, 1),
    Sketcher.Constraint("Coincident", 11, 2, 12, 1),
    Sketcher.Constraint("Coincident", 12, 2, 13, 1),
    Sketcher.Constraint("Coincident", 13, 2, 0, 1),
    Sketcher.Constraint("Horizontal", 0),
    Sketcher.Constraint("Vertical", 1),
    Sketcher.Constraint("Horizontal", 2),
    Sketcher.Constraint("Vertical", 3),
    Sketcher.Constraint("Horizontal", 5),
    Sketcher.Constraint("Vertical", 6),
    Sketcher.Constraint("Horizontal", 7),
    Sketcher.Constraint("Vertical", 8),
    Sketcher.Constraint("Horizontal", 9),
    Sketcher.Constraint("Vertical", 11),
    Sketcher.Constraint("Horizontal", 12),
    Sketcher.Constraint("Vertical", 13),
    Sketcher.Constraint("Symmetric", 5, 2, 8, 2, -2),
    Sketcher.Constraint("Symmetric", 3, 2, 10, 2, -2),
    Sketcher.Constraint("Symmetric", 1, 2, 12, 2, -2),
    Sketcher.Constraint("Vertical", 1, 2, 4, 2),
    Sketcher.Constraint("Vertical", 9, 2, 12, 2),
    Sketcher.Constraint("DistanceX", 2, 2, 2, 1, Q("0.3 mm")),
    Sketcher.Constraint("DistanceX", 5, 1, 5, 2, Q("0.7 mm")),
    Sketcher.Constraint("DistanceY", 3, 1, 3, 2, Q("0.6 mm")),
    Sketcher.Constraint("DistanceX", 0, 2, 0, 1, Q("4.92 mm")),
    Sketcher.Constraint("DistanceY", 1, 1, 1, 2, Q("4.02 mm")),
    Sketcher.Constraint("DistanceY", 6, 2, 6, 1, Q("5.22 mm")),
    Sketcher.Constraint("DistanceY", 0, 2, -1, 1, Q("8.1 mm")),
    Sketcher.Constraint("DistanceY", 6, 2, -1, 1, Q("7.4 mm")),
])
sketch6.setExpression("Constraints[31]", "Params.sketch6_width")
sketch6.setExpression("Constraints[32]", "Params.sketch6_width2")
sketch6.setExpression("Constraints[33]", "Params.sketch6_height")
sketch6.setExpression("Constraints[34]", "Params.sketch6_width3")
sketch6.setExpression("Constraints[35]", "Params.sketch6_height2")
pad3 = body.newObject("PartDesign::Pad", "Pad002")
pad3.Profile = sketch6
pad3.setExpression("Length", "Params.pad3_length")
pad3.Reversed = True
body2 = doc.addObject("PartDesign::Body", "Body001")

# Sketch on XY plane
sketch7 = body2.newObject("Sketcher::SketchObject", "Sketch006")
sketch7.AttachmentSupport = (doc.getObject("XY_Plane001"), [""])
sketch7.MapMode = "FlatFace"
sketch7.AttachmentOffset = App.Placement(Vector(0, 0, -8.1), App.Rotation())
sketch7.addGeometry(Part.Circle(Vector(0, -0.4, 0), Vector(0, 0, 1), 0.65), False)
sketch7.addConstraint([
    Sketcher.Constraint("PointOnObject", 0, 3, -2),
    Sketcher.Constraint("Diameter", 0, Q("1.3 mm")),
    Sketcher.Constraint("DistanceY", 0, 3, -1, 1, Q("0.4 mm")),
])
sketch7.setExpression("Constraints[1]", "Params.sketch7_diameter")
pad4 = body2.newObject("PartDesign::Pad", "Pad003")
pad4.Profile = sketch7
pad4.Type = "TwoLengths"
pad4.setExpression("Length", "Params.pad4_length")
pad4.setExpression("Length2", "Params.pad4_length2")
pad4.Reversed = True
body3 = doc.addObject("PartDesign::Body", "Body002")

# Sketch on XY plane
sketch8 = body3.newObject("Sketcher::SketchObject", "Sketch007")
sketch8.AttachmentSupport = (doc.getObject("XY_Plane002"), [""])
sketch8.MapMode = "FlatFace"
sketch8.AttachmentOffset = App.Placement(Vector(0, 0, -8.1), App.Rotation())
sketch8.addGeometry(Part.Circle(Vector(2.3, -0.4, 0), Vector(0, 0, 1), 0.65), False)
sketch8.addConstraint([
    Sketcher.Constraint("Diameter", 0, Q("1.3 mm")),
    Sketcher.Constraint("DistanceX", -1, 1, 0, 3, Q("2.3 mm")),
    Sketcher.Constraint("DistanceY", 0, 3, -1, 1, Q("0.4 mm")),
])
sketch8.setExpression("Constraints[0]", "Params.sketch8_diameter")
pad5 = body3.newObject("PartDesign::Pad", "Pad004")
pad5.Profile = sketch8
pad5.Type = "TwoLengths"
pad5.setExpression("Length", "Params.pad5_length")
pad5.setExpression("Length2", "Params.pad5_length2")
pad5.Reversed = True
body4 = doc.addObject("PartDesign::Body", "Body003")

# Sketch on XY plane
sketch9 = body4.newObject("Sketcher::SketchObject", "Sketch008")
sketch9.AttachmentSupport = (doc.getObject("XY_Plane003"), [""])
sketch9.MapMode = "FlatFace"
sketch9.AttachmentOffset = App.Placement(Vector(0, 0, -8.1), App.Rotation())
sketch9.addGeometry(Part.Circle(Vector(-2.3, -0.4, 0), Vector(0, 0, 1), 0.65), False)
sketch9.addConstraint([
    Sketcher.Constraint("Diameter", 0, Q("1.3 mm")),
    Sketcher.Constraint("DistanceX", 0, 3, -1, 1, Q("2.3 mm")),
    Sketcher.Constraint("DistanceY", 0, 3, -1, 1, Q("0.4 mm")),
])
sketch9.setExpression("Constraints[0]", "Params.sketch9_diameter")
pad6 = body4.newObject("PartDesign::Pad", "Pad005")
pad6.Profile = sketch9
pad6.Type = "TwoLengths"
pad6.setExpression("Length", "Params.pad6_length")
pad6.setExpression("Length2", "Params.pad6_length2")
pad6.Reversed = True

doc.recompute()
